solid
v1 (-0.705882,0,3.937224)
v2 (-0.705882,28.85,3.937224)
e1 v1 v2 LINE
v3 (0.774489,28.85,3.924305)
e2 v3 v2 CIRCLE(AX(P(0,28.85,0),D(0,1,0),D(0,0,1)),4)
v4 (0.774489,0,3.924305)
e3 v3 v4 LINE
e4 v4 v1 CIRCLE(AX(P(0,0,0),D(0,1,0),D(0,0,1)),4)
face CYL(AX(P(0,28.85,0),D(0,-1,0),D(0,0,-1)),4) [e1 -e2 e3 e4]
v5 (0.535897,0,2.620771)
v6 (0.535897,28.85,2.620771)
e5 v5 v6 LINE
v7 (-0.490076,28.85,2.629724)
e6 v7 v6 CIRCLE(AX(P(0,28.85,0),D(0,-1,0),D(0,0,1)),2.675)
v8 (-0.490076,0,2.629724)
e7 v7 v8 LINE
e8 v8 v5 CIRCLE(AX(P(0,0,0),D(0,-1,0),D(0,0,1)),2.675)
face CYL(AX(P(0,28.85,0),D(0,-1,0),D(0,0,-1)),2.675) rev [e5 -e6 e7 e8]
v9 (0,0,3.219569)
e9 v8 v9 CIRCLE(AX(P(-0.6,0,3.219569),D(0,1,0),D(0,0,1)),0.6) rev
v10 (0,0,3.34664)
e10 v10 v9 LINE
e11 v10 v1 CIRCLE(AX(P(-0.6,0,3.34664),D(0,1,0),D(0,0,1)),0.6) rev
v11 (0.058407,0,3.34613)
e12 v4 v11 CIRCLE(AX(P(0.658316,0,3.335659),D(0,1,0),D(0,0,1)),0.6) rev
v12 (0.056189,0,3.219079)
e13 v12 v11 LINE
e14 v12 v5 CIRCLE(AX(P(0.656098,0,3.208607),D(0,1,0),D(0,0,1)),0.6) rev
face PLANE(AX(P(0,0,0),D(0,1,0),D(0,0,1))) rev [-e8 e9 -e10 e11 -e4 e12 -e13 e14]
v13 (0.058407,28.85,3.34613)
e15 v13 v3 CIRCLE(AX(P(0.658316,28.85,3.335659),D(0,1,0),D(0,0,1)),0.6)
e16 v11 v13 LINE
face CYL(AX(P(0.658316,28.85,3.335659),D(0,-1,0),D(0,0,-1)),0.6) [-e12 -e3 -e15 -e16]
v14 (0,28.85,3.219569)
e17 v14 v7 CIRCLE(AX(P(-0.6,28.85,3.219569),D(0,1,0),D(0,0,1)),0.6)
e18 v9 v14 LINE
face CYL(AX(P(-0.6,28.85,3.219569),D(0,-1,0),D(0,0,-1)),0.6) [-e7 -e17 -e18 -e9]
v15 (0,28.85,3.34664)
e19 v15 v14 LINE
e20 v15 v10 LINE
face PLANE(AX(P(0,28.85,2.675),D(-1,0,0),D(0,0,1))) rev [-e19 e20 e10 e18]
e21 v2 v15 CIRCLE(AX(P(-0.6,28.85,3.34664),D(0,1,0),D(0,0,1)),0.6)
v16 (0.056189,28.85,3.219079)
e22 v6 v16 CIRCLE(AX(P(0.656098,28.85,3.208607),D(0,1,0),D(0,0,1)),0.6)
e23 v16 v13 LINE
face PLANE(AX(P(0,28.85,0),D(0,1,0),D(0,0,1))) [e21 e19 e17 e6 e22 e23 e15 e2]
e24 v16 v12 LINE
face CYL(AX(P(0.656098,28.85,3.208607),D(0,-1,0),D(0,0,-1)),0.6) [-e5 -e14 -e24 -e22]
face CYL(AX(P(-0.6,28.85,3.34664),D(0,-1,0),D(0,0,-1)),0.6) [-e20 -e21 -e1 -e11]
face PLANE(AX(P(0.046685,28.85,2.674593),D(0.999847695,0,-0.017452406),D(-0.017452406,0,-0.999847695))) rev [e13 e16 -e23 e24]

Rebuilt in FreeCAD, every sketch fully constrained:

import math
import FreeCAD as App
import Part
import Sketcher

V = App.Vector
Q = App.Units.Quantity


def edges_at(feature, points):
    """Names of the edges that pass closest to the given points."""
    edges = feature.Shape.Edges
    near = lambda p: min(range(len(edges)), key=lambda i: edges[i].distToShape(Part.Vertex(*p))[0])
    return sorted({f"Edge{near(p) + 1}" for p in points})

doc = App.newDocument("Part")
body = doc.addObject("PartDesign::Body", "Body")

sketch1 = doc.addObject("Sketcher::SketchObject", "Sketch")
body.addObject(sketch1)
sketch1.AttachmentSupport = (doc.XZ_Plane, [""])
sketch1.MapMode = "FlatFace"
sketch1.addGeometry([
    Part.LineSegment(V(0.047, 2.675, 0), V(0.07, 3.999, 0)),
    Part.ArcOfCircle(Part.Circle(V(0, 0, 0), V(0, 0, 1), 4), math.radians(90), math.radians(449)),
    Part.LineSegment(V(0, 4, 0), V(0, 2.675, 0)),
    Part.ArcOfCircle(Part.Circle(V(0, 0, 0), V(0, 0, 1), 2.675), math.radians(90), math.radians(449)),
], False)
sketch1.addConstraint([
    Sketcher.Constraint("Coincident", 0, 2, 1, 2),
    Sketcher.Constraint("Coincident", 1, 1, 2, 1),
    Sketcher.Constraint("Coincident", 2, 2, 3, 1),
    Sketcher.Constraint("Coincident", 3, 2, 0, 1),
    Sketcher.Constraint("Vertical", 2),
    Sketcher.Constraint("Coincident", 1, 3, -1, 1),
    Sketcher.Constraint("Coincident", 3, 3, -1, 1),
    Sketcher.Constraint("PointOnObject", 1, 1, -2),
    Sketcher.Constraint("Radius", 1, Q("4 mm")),
    Sketcher.Constraint("Angle", 0, Q("89 deg")),
    Sketcher.Constraint("Radius", 3, Q("2.675 mm")),
    Sketcher.Constraint("DistanceX", -1, 1, 0, 2, Q("0.06981 mm")),
])
pad1 = doc.addObject("PartDesign::Pad", "Pad")
body.addObject(pad1)
pad1.Profile = sketch1
pad1.Length = 28.85
pad1.Reversed = True
doc.recompute()

fillet = doc.addObject("PartDesign::Fillet", "Fillet")
body.addObject(fillet)
fillet.Base = (pad1, edges_at(pad1, [
    (0, 14.425, 2.675),
    (0, 14.425, 4),
    (0.07, 14.425, 3.999),
    (0.047, 14.425, 2.675),
]))
fillet.Radius = 0.6

doc.recompute()
